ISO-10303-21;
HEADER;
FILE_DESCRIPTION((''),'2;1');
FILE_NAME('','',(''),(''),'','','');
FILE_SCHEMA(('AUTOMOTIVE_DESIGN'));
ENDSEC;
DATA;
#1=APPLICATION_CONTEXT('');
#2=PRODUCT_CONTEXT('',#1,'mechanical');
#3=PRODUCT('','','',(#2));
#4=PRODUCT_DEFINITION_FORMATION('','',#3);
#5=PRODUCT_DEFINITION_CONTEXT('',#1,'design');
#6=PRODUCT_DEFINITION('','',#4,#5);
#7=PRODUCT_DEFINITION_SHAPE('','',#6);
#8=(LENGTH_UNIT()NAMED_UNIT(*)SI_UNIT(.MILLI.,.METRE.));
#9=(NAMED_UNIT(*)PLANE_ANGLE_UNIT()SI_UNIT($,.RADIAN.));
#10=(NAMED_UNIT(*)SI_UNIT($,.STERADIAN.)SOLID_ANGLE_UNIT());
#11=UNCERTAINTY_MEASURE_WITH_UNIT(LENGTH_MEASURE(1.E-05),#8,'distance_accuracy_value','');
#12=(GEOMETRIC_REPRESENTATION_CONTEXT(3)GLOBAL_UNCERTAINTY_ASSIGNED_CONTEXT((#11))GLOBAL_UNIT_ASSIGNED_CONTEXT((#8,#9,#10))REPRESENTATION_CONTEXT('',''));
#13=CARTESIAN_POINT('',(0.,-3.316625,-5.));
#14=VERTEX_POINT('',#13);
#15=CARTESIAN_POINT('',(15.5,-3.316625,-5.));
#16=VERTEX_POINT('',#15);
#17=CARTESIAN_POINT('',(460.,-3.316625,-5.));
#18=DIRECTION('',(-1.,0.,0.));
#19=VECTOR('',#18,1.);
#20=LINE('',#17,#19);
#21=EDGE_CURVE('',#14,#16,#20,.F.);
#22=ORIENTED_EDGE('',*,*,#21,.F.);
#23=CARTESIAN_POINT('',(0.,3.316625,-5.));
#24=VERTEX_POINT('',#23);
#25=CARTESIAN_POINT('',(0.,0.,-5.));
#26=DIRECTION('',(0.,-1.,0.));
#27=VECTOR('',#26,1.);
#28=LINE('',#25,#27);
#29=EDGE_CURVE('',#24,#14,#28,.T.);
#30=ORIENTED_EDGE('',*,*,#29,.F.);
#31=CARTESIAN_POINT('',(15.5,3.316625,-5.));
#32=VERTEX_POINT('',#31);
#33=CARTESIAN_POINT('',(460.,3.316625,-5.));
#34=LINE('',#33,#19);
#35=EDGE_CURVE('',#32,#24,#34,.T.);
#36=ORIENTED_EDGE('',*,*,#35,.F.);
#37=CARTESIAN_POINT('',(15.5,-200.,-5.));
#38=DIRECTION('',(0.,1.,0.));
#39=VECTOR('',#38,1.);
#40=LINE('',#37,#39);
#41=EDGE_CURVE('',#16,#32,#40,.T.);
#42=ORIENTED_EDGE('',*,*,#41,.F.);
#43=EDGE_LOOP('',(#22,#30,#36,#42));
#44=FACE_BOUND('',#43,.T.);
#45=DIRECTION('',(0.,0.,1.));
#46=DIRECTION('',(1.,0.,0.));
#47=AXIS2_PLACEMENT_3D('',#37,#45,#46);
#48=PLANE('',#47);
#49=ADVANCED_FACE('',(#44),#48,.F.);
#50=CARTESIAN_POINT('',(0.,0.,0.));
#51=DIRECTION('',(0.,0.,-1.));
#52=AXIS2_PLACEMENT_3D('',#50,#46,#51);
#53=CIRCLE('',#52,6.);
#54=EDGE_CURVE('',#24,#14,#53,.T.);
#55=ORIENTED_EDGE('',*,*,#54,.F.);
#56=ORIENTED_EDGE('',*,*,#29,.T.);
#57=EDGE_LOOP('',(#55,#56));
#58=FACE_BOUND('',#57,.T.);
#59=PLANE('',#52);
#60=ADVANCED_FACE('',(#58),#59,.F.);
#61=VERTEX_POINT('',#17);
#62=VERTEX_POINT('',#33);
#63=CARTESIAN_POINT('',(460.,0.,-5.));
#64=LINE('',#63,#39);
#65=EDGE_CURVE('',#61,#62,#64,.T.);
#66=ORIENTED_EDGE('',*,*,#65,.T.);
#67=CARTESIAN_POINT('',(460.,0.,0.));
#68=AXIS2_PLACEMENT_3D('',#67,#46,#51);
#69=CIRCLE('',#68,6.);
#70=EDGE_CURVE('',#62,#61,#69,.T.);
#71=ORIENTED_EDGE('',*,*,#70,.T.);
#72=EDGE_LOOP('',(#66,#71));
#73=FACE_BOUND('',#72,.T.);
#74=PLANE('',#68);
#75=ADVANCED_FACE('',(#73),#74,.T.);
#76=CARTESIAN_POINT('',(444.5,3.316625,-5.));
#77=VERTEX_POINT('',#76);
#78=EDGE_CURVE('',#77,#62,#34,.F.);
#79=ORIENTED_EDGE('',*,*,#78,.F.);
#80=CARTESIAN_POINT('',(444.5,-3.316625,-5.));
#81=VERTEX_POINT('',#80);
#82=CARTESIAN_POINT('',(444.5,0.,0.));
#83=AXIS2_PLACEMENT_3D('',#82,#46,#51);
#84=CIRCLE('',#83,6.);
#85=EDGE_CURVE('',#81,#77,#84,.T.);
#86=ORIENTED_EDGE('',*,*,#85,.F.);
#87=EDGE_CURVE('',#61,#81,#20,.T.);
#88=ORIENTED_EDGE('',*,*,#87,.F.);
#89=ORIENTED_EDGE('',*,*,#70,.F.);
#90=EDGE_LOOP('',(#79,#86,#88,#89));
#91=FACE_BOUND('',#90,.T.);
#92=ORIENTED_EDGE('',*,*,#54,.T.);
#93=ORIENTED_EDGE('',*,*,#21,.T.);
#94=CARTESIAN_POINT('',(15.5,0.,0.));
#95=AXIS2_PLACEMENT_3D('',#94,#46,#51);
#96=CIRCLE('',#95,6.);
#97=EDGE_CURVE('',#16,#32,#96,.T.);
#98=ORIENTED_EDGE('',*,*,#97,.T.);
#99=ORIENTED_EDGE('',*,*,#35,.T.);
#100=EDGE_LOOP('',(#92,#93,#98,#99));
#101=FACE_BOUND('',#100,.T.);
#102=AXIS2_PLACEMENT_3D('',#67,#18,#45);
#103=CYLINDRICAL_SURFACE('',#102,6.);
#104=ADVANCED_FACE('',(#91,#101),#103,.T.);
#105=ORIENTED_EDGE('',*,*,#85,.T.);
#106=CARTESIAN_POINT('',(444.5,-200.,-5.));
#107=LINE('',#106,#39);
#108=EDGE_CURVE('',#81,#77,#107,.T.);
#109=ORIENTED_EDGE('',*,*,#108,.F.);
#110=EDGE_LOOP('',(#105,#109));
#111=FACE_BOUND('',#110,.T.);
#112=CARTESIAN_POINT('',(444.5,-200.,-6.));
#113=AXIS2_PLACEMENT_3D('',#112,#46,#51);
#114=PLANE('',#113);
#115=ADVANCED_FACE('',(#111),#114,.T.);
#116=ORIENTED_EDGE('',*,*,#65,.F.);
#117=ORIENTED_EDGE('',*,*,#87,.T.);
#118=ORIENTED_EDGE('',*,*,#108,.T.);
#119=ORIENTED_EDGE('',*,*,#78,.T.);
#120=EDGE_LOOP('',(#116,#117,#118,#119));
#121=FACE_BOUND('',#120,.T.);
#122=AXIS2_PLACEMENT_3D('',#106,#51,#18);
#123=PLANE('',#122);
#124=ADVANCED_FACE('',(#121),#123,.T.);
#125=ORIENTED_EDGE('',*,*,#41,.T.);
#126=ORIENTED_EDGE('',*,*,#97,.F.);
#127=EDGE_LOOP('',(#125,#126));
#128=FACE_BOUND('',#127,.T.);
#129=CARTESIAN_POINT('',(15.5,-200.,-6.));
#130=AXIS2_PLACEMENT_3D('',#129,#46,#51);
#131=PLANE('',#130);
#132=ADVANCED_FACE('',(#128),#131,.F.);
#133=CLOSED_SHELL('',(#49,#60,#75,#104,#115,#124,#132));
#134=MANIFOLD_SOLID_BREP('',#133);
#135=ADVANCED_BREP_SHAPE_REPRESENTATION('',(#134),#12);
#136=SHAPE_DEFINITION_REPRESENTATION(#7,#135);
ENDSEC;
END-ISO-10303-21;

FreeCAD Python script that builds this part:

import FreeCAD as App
import Part
import Sketcher

V = App.Vector


def add_polygon(sketch, points):
    """Adds a closed chain of lines whose ends are joined by coincident constraints."""
    first, n = sketch.GeometryCount, len(points)
    for a, b in zip(points, points[1:] + points[:1]):
        sketch.addGeometry(Part.LineSegment(App.Vector(*a, 0), App.Vector(*b, 0)), False)
    for i in range(n):
        sketch.addConstraint(Sketcher.Constraint("Coincident", first + i, 2, first + (i + 1) % n, 1))

doc = App.newDocument("Part")
body = doc.addObject("PartDesign::Body", "Body")

sketch1 = body.newObject("Sketcher::SketchObject", "Sketch")
sketch1.AttachmentSupport = (doc.getObject("YZ_Plane"), [""])
sketch1.MapMode = "FlatFace"
sketch1.addGeometry(Part.Circle(V(0, 0, 0), V(0, 0, 1), 6), False)
sketch1.addConstraint([
    Sketcher.Constraint("Coincident", 0, 3, -1, 1),
    Sketcher.Constraint("Diameter", 0, 12.0),
])
pad1 = body.newObject("PartDesign::Pad", "Pad")
pad1.Profile = sketch1
pad1.Length = 460

sketch2 = body.newObject("Sketcher::SketchObject", "Sketch001")
sketch2.AttachmentSupport = (doc.getObject("XZ_Plane"), [""])
sketch2.MapMode = "FlatFace"
add_polygon(sketch2, [(0, -6), (0, -5), (15.5, -5), (15.5, -6)])
sketch2.addConstraint([
    Sketcher.Constraint("Vertical", 0),
    Sketcher.Constraint("Horizontal", 1),
    Sketcher.Constraint("Vertical", 2),
    Sketcher.Constraint("Horizontal", 3),
    Sketcher.Constraint("PointOnObject", 0, 2, -2),
    Sketcher.Constraint("DistanceY", 0, 1, 0, 2, 1.0),
    Sketcher.Constraint("DistanceX", 1, 1, 1, 2, 15.5),
    Sketcher.Constraint("DistanceY", 0, 2, -1, 1, 5.0),
])
pocket1 = body.newObject("PartDesign::Pocket", "Pocket")
pocket1.Profile = sketch2
pocket1.Length = 400
pocket1.Midplane = True
doc.recompute()

datumplane = body.newObject("PartDesign::Plane", "DatumPlane")
datumplane.AttachmentSupport = (doc.getObject("YZ_Plane"), [""])
datumplane.MapMode = "FlatFace"
datumplane.AttachmentOffset = App.Placement(V(0, 0, 230), App.Rotation())
mirrored = body.newObject("PartDesign::Mirrored", "Mirrored")
mirrored.Originals = [pocket1]
mirrored.MirrorPlane = (datumplane, [""])
body.Tip = mirrored

doc.recompute()
